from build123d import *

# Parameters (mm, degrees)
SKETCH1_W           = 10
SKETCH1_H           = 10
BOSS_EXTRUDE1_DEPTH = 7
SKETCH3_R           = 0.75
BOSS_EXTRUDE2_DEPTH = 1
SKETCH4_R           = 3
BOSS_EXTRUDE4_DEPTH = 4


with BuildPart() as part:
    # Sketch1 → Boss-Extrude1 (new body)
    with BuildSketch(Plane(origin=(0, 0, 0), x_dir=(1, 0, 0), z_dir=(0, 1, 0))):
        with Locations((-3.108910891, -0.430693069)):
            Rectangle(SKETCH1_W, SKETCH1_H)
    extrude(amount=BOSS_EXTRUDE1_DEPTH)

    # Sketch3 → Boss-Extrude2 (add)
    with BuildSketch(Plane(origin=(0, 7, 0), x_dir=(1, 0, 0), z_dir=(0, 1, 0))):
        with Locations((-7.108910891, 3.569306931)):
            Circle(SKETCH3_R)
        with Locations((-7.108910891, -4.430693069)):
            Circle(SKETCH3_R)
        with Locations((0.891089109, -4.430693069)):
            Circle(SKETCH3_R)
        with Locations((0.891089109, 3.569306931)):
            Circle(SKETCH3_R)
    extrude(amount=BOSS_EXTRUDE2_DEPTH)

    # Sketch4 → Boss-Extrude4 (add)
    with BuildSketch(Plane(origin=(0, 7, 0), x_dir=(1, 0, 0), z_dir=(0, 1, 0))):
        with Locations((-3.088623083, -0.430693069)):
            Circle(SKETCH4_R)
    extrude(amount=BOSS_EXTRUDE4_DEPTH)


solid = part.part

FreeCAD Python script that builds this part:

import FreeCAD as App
import Part
import Sketcher
Q = App.Units.Quantity

doc = App.newDocument("Part")
params = doc.addObject("Spreadsheet::Sheet", "Params")
for row, (alias, value) in enumerate([
    ("sketch1_width", "10 mm"),
    ("pad1_length", "7 mm"),
    ("sketch2_diameter", "1.5 mm"),
    ("pad2_length", "1 mm"),
    ("sketch3_diameter", "6 mm"),
    ("pad3_length", "4 mm"),
], start=1):
    params.set(f"A{row}", alias)
    params.set(f"B{row}", "=" + value)
    params.setAlias(f"B{row}", alias)

body = doc.addObject("PartDesign::Body", "Body")

sketch1 = body.newObject("Sketcher::SketchObject", "Sketch")
sketch1.AttachmentSupport = (doc.getObject("XZ_Plane"), [""])
sketch1.MapMode = "FlatFace"
sketch1.addGeometry(Part.LineSegment(App.Vector(-8, -5, 0), App.Vector(-8, 5, 0)), False)
sketch1.addGeometry(Part.LineSegment(App.Vector(-8, 5, 0), App.Vector(2, 5, 0)), False)
sketch1.addGeometry(Part.LineSegment(App.Vector(2, 5, 0), App.Vector(2, -5, 0)), False)
sketch1.addGeometry(Part.LineSegment(App.Vector(2, -5, 0), App.Vector(-8, -5, 0)), False)
sketch1.addConstraint(Sketcher.Constraint("Coincident", 0, 2, 1, 1))
sketch1.addConstraint(Sketcher.Constraint("Coincident", 1, 2, 2, 1))
sketch1.addConstraint(Sketcher.Constraint("Coincident", 2, 2, 3, 1))
sketch1.addConstraint(Sketcher.Constraint("Coincident", 3, 2, 0, 1))
sketch1.addConstraint(Sketcher.Constraint("Vertical", 0))
sketch1.addConstraint(Sketcher.Constraint("Horizontal", 1))
sketch1.addConstraint(Sketcher.Constraint("Vertical", 2))
sketch1.addConstraint(Sketcher.Constraint("Horizontal", 3))
sketch1.addConstraint(Sketcher.Constraint("Equal", 3, 0))
sketch1.addConstraint(Sketcher.Constraint("DistanceX", 1, 1, 1, 2, Q("10 mm")))
sketch1.addConstraint(Sketcher.Constraint("DistanceX", 0, 2, -1, 1, Q("8.108911 mm")))
sketch1.addConstraint(Sketcher.Constraint("DistanceY", -1, 1, 0, 2, Q("5.430693 mm")))
sketch1.setExpression("Constraints[9]", "Params.sketch1_width")
pad1 = body.newObject("PartDesign::Pad", "Pad")
pad1.Profile = sketch1
pad1.setExpression("Length", "Params.pad1_length")
pad1.Reversed = True

sketch2 = body.newObject("Sketcher::SketchObject", "Sketch001")
sketch2.AttachmentSupport = (doc.getObject("XZ_Plane"), [""])
sketch2.MapMode = "FlatFace"
sketch2.AttachmentOffset = App.Placement(App.Vector(0, 0, -7), App.Rotation())
sketch2.addGeometry(Part.Circle(App.Vector(-7.1, -3.6, 0), App.Vector(0, 0, 1), 0.8), False)
sketch2.addGeometry(Part.Circle(App.Vector(-7.1, 4.4, 0), App.Vector(0, 0, 1), 0.8), False)
sketch2.addGeometry(Part.Circle(App.Vector(0.9, 4.4, 0), App.Vector(0, 0, 1), 0.8), False)
sketch2.addGeometry(Part.Circle(App.Vector(0.9, -3.6, 0), App.Vector(0, 0, 1), 0.8), False)
sketch2.addConstraint(Sketcher.Constraint("Equal", 0, 1))
sketch2.addConstraint(Sketcher.Constraint("Equal", 1, 2))
sketch2.addConstraint(Sketcher.Constraint("Equal", 2, 3))
sketch2.addConstraint(Sketcher.Constraint("Horizontal", 1, 3, 2, 3))
sketch2.addConstraint(Sketcher.Constraint("Horizontal", 0, 3, 3, 3))
sketch2.addConstraint(Sketcher.Constraint("Vertical", 0, 3, 1, 3))
sketch2.addConstraint(Sketcher.Constraint("Vertical", 2, 3, 3, 3))
sketch2.addConstraint(Sketcher.Constraint("Diameter", 0, Q("1.5 mm")))
sketch2.addConstraint(Sketcher.Constraint("DistanceY", 0, 3, 1, 3, Q("8 mm")))
sketch2.addConstraint(Sketcher.Constraint("DistanceX", 1, 3, 2, 3, Q("8 mm")))
sketch2.addConstraint(Sketcher.Constraint("DistanceX", 0, 3, -1, 1, Q("7.108911 mm")))
sketch2.addConstraint(Sketcher.Constraint("DistanceY", 0, 3, -1, 1, Q("3.569307 mm")))
sketch2.setExpression("Constraints[7]", "Params.sketch2_diameter")
pad2 = body.newObject("PartDesign::Pad", "Pad001")
pad2.Profile = sketch2
pad2.setExpression("Length", "Params.pad2_length")
pad2.Reversed = True

sketch3 = body.newObject("Sketcher::SketchObject", "Sketch002")
sketch3.AttachmentSupport = (doc.getObject("XZ_Plane"), [""])
sketch3.MapMode = "FlatFace"
sketch3.AttachmentOffset = App.Placement(App.Vector(0, 0, -7), App.Rotation())
sketch3.addGeometry(Part.Circle(App.Vector(-3.1, 0.4, 0), App.Vector(0, 0, 1), 3), False)
sketch3.addConstraint(Sketcher.Constraint("Diameter", 0, Q("6 mm")))
sketch3.addConstraint(Sketcher.Constraint("DistanceX", 0, 3, -1, 1, Q("3.088623 mm")))
sketch3.addConstraint(Sketcher.Constraint("DistanceY", -1, 1, 0, 3, Q("0.430693 mm")))
sketch3.setExpression("Constraints[0]", "Params.sketch3_diameter")
pad3 = body.newObject("PartDesign::Pad", "Pad002")
pad3.Profile = sketch3
pad3.setExpression("Length", "Params.pad3_length")
pad3.Reversed = True

doc.recompute()
